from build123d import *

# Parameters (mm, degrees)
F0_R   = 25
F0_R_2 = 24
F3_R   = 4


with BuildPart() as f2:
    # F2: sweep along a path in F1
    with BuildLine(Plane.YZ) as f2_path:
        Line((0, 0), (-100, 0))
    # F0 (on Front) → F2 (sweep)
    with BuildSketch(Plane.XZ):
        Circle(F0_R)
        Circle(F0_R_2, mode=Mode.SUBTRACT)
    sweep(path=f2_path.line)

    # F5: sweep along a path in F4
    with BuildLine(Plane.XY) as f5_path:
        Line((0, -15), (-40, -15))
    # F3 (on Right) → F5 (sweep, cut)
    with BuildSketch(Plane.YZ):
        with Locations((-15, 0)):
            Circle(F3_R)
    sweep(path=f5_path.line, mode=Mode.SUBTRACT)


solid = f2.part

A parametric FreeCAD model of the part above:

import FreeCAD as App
import Part
import Sketcher
Q = App.Units.Quantity

doc = App.newDocument("Part")
params = doc.addObject("Spreadsheet::Sheet", "Params")
for row, (alias, value) in enumerate([
    ("sketch1_diameter", "50 mm"),
    ("sketch1_diameter2", "48 mm"),
    ("sketch2_height", "100 mm"),
    ("sketch3_diameter", "8 mm"),
    ("sketch4_width", "40 mm"),
], start=1):
    params.set(f"A{row}", alias)
    params.set(f"B{row}", "=" + value)
    params.setAlias(f"B{row}", alias)

body = doc.addObject("PartDesign::Body", "Body")

# Sketch on XZ plane
sketch1 = body.newObject("Sketcher::SketchObject", "Sketch")
sketch1.AttachmentSupport = (doc.getObject("XZ_Plane"), [""])
sketch1.MapMode = "FlatFace"
sketch1.addGeometry(Part.Circle(App.Vector(0, 0, 0), App.Vector(0, 0, 1), 25), False)
sketch1.addGeometry(Part.Circle(App.Vector(0, 0, 0), App.Vector(0, 0, 1), 24), False)
sketch1.addConstraint(Sketcher.Constraint("Coincident", 0, 3, -1, 1))
sketch1.addConstraint(Sketcher.Constraint("Coincident", 1, 3, -1, 1))
sketch1.addConstraint(Sketcher.Constraint("Diameter", 0, Q("50 mm")))
sketch1.addConstraint(Sketcher.Constraint("Diameter", 1, Q("48 mm")))
sketch1.setExpression("Constraints[2]", "Params.sketch1_diameter")
sketch1.setExpression("Constraints[3]", "Params.sketch1_diameter2")

# Sketch on XY plane
sketch2 = body.newObject("Sketcher::SketchObject", "Sketch001")
sketch2.AttachmentSupport = (doc.getObject("XY_Plane"), [""])
sketch2.MapMode = "FlatFace"
sketch2.addGeometry(Part.LineSegment(App.Vector(0, 0, 0), App.Vector(0, -100, 0)), False)
sketch2.addConstraint(Sketcher.Constraint("Vertical", 0))
sketch2.addConstraint(Sketcher.Constraint("Coincident", 0, 1, -1, 1))
sketch2.addConstraint(Sketcher.Constraint("DistanceY", 0, 2, 0, 1, Q("100 mm")))
sketch2.setExpression("Constraints[2]", "Params.sketch2_height")
doc.recompute()

additivepipe = body.newObject("PartDesign::AdditivePipe", "AdditivePipe")
additivepipe.Profile = sketch1
additivepipe.Spine = (sketch2, ["Edge1"])

# Sketch on YZ plane
sketch3 = body.newObject("Sketcher::SketchObject", "Sketch002")
sketch3.AttachmentSupport = (doc.getObject("YZ_Plane"), [""])
sketch3.MapMode = "FlatFace"
sketch3.addGeometry(Part.Circle(App.Vector(-15, 0, 0), App.Vector(0, 0, 1), 4), False)
sketch3.addConstraint(Sketcher.Constraint("PointOnObject", 0, 3, -1))
sketch3.addConstraint(Sketcher.Constraint("Diameter", 0, Q("8 mm")))
sketch3.addConstraint(Sketcher.Constraint("DistanceX", 0, 3, -1, 1, Q("15 mm")))
sketch3.setExpression("Constraints[1]", "Params.sketch3_diameter")

# Sketch on XY plane
sketch4 = body.newObject("Sketcher::SketchObject", "Sketch003")
sketch4.AttachmentSupport = (doc.getObject("XY_Plane"), [""])
sketch4.MapMode = "FlatFace"
sketch4.addGeometry(Part.LineSegment(App.Vector(0, -15, 0), App.Vector(-40, -15, 0)), False)
sketch4.addConstraint(Sketcher.Constraint("Horizontal", 0))
sketch4.addConstraint(Sketcher.Constraint("PointOnObject", 0, 1, -2))
sketch4.addConstraint(Sketcher.Constraint("DistanceX", 0, 2, 0, 1, Q("40 mm")))
sketch4.addConstraint(Sketcher.Constraint("DistanceY", 0, 1, -1, 1, Q("15 mm")))
sketch4.setExpression("Constraints[2]", "Params.sketch4_width")
doc.recompute()

subtractivepipe = body.newObject("PartDesign::SubtractivePipe", "SubtractivePipe")
subtractivepipe.Profile = sketch3
subtractivepipe.Spine = (sketch4, ["Edge1"])

doc.recompute()
